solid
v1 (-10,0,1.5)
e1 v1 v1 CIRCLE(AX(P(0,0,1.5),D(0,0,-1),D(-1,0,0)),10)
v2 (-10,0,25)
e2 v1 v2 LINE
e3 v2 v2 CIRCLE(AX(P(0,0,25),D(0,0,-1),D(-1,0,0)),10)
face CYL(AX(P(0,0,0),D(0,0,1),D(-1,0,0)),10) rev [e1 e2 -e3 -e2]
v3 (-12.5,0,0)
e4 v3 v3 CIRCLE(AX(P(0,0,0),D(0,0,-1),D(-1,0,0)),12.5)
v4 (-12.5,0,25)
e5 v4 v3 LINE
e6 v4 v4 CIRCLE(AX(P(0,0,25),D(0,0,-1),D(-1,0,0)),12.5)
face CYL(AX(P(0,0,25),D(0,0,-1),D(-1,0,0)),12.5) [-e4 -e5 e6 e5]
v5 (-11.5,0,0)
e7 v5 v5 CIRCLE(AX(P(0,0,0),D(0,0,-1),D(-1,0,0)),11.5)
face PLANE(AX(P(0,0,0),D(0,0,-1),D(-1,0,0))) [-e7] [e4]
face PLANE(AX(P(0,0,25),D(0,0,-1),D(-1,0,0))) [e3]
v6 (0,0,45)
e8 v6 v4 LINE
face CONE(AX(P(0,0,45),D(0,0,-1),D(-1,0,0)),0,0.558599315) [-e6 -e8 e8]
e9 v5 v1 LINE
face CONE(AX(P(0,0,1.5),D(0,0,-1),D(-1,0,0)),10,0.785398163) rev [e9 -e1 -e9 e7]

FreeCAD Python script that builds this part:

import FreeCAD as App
import Part
import Sketcher

V = App.Vector
Q = App.Units.Quantity


def edges_at(feature, points):
    """Names of the edges that pass closest to the given points."""
    edges = feature.Shape.Edges
    near = lambda p: min(range(len(edges)), key=lambda i: edges[i].distToShape(Part.Vertex(*p))[0])
    return sorted({f"Edge{near(p) + 1}" for p in points})

doc = App.newDocument("Part")
params = doc.addObject("Spreadsheet::Sheet", "Params")
for row, (alias, value) in enumerate([
    ("sketch1_width", "10 mm"),
    ("sketch1_height", "20 mm"),
    ("sketch1_height2", "25 mm"),
    ("sketch1_width2", "2.5 mm"),
    ("revolution_angle", "360 deg"),
    ("chamfer_size", "1.5 mm"),
], start=1):
    params.set(f"A{row}", alias)
    params.set(f"B{row}", "=" + value)
    params.setAlias(f"B{row}", alias)

body = doc.addObject("PartDesign::Body", "Body")

# Sketch on XZ plane
sketch1 = body.newObject("Sketcher::SketchObject", "Sketch")
sketch1.AttachmentSupport = (doc.getObject("XZ_Plane"), [""])
sketch1.MapMode = "FlatFace"
sketch1.addGeometry([
    Part.LineSegment(V(-10, 25, 0), V(0, 25, 0)),  # 0
    Part.LineSegment(V(0, 25, 0), V(0, 45, 0)),  # 1
    Part.LineSegment(V(0, 45, 0), V(-12.5, 25, 0)),  # 2
    Part.LineSegment(V(-12.5, 25, 0), V(-12.5, 0, 0)),  # 3
    Part.LineSegment(V(-12.5, 0, 0), V(-10, 0, 0)),  # 4
    Part.LineSegment(V(-10, 0, 0), V(-10, 25, 0)),  # 5
], False)
sketch1.addConstraint([
    Sketcher.Constraint("Coincident", 0, 2, 1, 1),
    Sketcher.Constraint("Coincident", 1, 2, 2, 1),
    Sketcher.Constraint("Coincident", 2, 2, 3, 1),
    Sketcher.Constraint("Coincident", 3, 2, 4, 1),
    Sketcher.Constraint("Coincident", 4, 2, 5, 1),
    Sketcher.Constraint("Coincident", 5, 2, 0, 1),
    Sketcher.Constraint("Horizontal", 0),
    Sketcher.Constraint("Vertical", 1),
    Sketcher.Constraint("Vertical", 3),
    Sketcher.Constraint("Horizontal", 4),
    Sketcher.Constraint("Vertical", 5),
    Sketcher.Constraint("PointOnObject", 0, 2, -2),
    Sketcher.Constraint("PointOnObject", 3, 2, -1),
    Sketcher.Constraint("Horizontal", 0, 2, 2, 2),
    Sketcher.Constraint("DistanceX", 0, 1, 0, 2, Q("10 mm")),
    Sketcher.Constraint("DistanceY", 1, 1, 1, 2, Q("20 mm")),
    Sketcher.Constraint("DistanceY", 3, 2, 3, 1, Q("25 mm")),
    Sketcher.Constraint("DistanceX", 4, 1, 4, 2, Q("2.5 mm")),
])
sketch1.setExpression("Constraints[14]", "Params.sketch1_width")
sketch1.setExpression("Constraints[15]", "Params.sketch1_height")
sketch1.setExpression("Constraints[16]", "Params.sketch1_height2")
sketch1.setExpression("Constraints[17]", "Params.sketch1_width2")
revolution = body.newObject("PartDesign::Revolution", "Revolution")
revolution.Profile = sketch1
revolution.ReferenceAxis = (sketch1, ["V_Axis"])
revolution.setExpression("Angle", "Params.revolution_angle")
doc.recompute()

chamfer = body.newObject("PartDesign::Chamfer", "Chamfer")
chamfer.Base = (revolution, edges_at(revolution, [(10, 0, 0)]))
chamfer.setExpression("Size", "Params.chamfer_size")

doc.recompute()
